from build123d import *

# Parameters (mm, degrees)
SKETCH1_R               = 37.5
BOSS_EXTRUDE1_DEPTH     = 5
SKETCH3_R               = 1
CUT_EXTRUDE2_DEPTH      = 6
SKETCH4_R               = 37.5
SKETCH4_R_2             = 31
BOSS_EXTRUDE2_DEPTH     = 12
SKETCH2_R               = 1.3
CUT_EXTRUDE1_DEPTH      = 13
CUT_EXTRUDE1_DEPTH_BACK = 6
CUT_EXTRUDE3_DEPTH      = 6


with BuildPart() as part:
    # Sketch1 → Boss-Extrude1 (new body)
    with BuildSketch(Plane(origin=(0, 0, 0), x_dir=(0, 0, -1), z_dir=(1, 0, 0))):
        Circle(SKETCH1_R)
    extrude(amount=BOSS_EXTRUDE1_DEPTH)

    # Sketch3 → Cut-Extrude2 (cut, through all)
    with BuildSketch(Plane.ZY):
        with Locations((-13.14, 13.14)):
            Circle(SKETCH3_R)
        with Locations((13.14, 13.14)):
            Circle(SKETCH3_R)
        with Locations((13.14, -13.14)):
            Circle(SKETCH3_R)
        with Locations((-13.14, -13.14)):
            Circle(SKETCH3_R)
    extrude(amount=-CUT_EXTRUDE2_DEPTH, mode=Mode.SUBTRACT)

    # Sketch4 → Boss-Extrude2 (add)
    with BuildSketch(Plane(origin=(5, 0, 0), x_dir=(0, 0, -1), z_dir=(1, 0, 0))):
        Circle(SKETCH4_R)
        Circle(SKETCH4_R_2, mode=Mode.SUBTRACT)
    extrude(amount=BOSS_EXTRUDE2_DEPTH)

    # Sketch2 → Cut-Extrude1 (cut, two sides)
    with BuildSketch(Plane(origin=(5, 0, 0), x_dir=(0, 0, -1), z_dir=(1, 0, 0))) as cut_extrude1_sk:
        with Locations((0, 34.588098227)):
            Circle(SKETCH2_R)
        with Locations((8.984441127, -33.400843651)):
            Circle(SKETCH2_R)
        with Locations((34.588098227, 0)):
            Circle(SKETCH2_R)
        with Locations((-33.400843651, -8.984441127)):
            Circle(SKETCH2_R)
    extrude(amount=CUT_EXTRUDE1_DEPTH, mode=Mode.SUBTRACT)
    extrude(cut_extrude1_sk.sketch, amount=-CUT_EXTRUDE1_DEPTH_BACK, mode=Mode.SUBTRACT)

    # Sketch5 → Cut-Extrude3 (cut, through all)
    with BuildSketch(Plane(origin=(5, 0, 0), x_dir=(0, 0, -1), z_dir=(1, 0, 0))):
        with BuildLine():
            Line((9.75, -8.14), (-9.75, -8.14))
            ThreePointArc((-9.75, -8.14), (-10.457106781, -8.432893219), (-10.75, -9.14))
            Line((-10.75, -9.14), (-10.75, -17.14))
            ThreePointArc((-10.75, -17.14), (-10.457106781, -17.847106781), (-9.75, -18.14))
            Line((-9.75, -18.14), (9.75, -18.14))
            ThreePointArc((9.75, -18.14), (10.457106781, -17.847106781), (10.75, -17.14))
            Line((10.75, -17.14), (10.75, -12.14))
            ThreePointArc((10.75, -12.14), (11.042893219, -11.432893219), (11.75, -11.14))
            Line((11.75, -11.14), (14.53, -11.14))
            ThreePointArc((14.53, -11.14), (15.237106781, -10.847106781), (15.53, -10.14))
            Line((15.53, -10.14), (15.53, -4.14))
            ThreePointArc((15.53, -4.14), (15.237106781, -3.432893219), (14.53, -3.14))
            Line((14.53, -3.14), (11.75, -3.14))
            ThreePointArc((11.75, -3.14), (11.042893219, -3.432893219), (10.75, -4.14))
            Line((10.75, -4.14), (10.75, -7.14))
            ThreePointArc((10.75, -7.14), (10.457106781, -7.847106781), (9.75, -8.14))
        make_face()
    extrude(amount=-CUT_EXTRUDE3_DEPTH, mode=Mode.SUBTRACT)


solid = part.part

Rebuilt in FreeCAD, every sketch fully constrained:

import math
import FreeCAD as App
import Part
import Sketcher
from FreeCAD import Vector

doc = App.newDocument("Part")
body = doc.addObject("PartDesign::Body", "Body")

# Sketch on YZ plane
sketch1 = body.newObject("Sketcher::SketchObject", "Sketch")
sketch1.AttachmentSupport = (doc.getObject("YZ_Plane"), [""])
sketch1.MapMode = "FlatFace"
sketch1.addGeometry(Part.Circle(Vector(0, 0, 0), Vector(0, 0, 1), 37.5), False)
sketch1.addConstraint(Sketcher.Constraint("Coincident", 0, 3, -1, 1))
sketch1.addConstraint(Sketcher.Constraint("Diameter", 0, 75.0))
pad1 = body.newObject("PartDesign::Pad", "Pad")
pad1.Profile = sketch1
pad1.Length = 5

# Sketch on YZ plane
sketch2 = body.newObject("Sketcher::SketchObject", "Sketch001")
sketch2.AttachmentSupport = (doc.getObject("YZ_Plane"), [""])
sketch2.MapMode = "FlatFace"
sketch2.addGeometry(Part.Circle(Vector(13.14, -13.14, 0), Vector(0, 0, 1), 1), False)
sketch2.addGeometry(Part.Circle(Vector(13.14, 13.14, 0), Vector(0, 0, 1), 1), False)
sketch2.addGeometry(Part.Circle(Vector(-13.14, 13.14, 0), Vector(0, 0, 1), 1), False)
sketch2.addGeometry(Part.Circle(Vector(-13.14, -13.14, 0), Vector(0, 0, 1), 1), False)
sketch2.addConstraint(Sketcher.Constraint("Equal", 0, 1))
sketch2.addConstraint(Sketcher.Constraint("Equal", 1, 2))
sketch2.addConstraint(Sketcher.Constraint("Equal", 2, 3))
sketch2.addConstraint(Sketcher.Constraint("Symmetric", 0, 3, 2, 3, -1, 1))
sketch2.addConstraint(Sketcher.Constraint("Symmetric", 1, 3, 3, 3, -1, 1))
sketch2.addConstraint(Sketcher.Constraint("Symmetric", 1, 3, 2, 3, -2))
sketch2.addConstraint(Sketcher.Constraint("Diameter", 0, 2.0))
sketch2.addConstraint(Sketcher.Constraint("DistanceX", -1, 1, 0, 3, 13.14))
sketch2.addConstraint(Sketcher.Constraint("DistanceY", 0, 3, -1, 1, 13.14))
pocket1 = body.newObject("PartDesign::Pocket", "Pocket")
pocket1.Profile = sketch2
pocket1.Type = "ThroughAll"
pocket1.Reversed = True

# Sketch on YZ plane
sketch3 = body.newObject("Sketcher::SketchObject", "Sketch002")
sketch3.AttachmentSupport = (doc.getObject("YZ_Plane"), [""])
sketch3.MapMode = "FlatFace"
sketch3.AttachmentOffset = App.Placement(Vector(0, 0, 5), App.Rotation())
sketch3.addGeometry(Part.Circle(Vector(0, 0, 0), Vector(0, 0, 1), 37.5), False)
sketch3.addGeometry(Part.Circle(Vector(0, 0, 0), Vector(0, 0, 1), 31), False)
sketch3.addConstraint(Sketcher.Constraint("Coincident", 0, 3, -1, 1))
sketch3.addConstraint(Sketcher.Constraint("Coincident", 1, 3, -1, 1))
sketch3.addConstraint(Sketcher.Constraint("Diameter", 0, 75.0))
sketch3.addConstraint(Sketcher.Constraint("Diameter", 1, 62.0))
pad2 = body.newObject("PartDesign::Pad", "Pad001")
pad2.Profile = sketch3
pad2.Length = 12

# Sketch on YZ plane
sketch4 = body.newObject("Sketcher::SketchObject", "Sketch003")
sketch4.AttachmentSupport = (doc.getObject("YZ_Plane"), [""])
sketch4.MapMode = "FlatFace"
sketch4.AttachmentOffset = App.Placement(Vector(0, 0, 5), App.Rotation())
sketch4.addGeometry(Part.Circle(Vector(34.588098, 0, 0), Vector(0, 0, 1), 1.3), False)
sketch4.addGeometry(Part.Circle(Vector(-33.400844, -8.984441, 0), Vector(0, 0, 1), 1.3), False)
sketch4.addGeometry(Part.Circle(Vector(0, -34.588098, 0), Vector(0, 0, 1), 1.3), False)
sketch4.addGeometry(Part.Circle(Vector(-8.984441, 33.400844, 0), Vector(0, 0, 1), 1.3), False)
sketch4.addConstraint(Sketcher.Constraint("Equal", 0, 1))
sketch4.addConstraint(Sketcher.Constraint("Equal", 1, 2))
sketch4.addConstraint(Sketcher.Constraint("Equal", 2, 3))
sketch4.addConstraint(Sketcher.Constraint("PointOnObject", 0, 3, -1))
sketch4.addConstraint(Sketcher.Constraint("PointOnObject", 2, 3, -2))
sketch4.addConstraint(Sketcher.Constraint("Diameter", 0, 2.6))
sketch4.addConstraint(Sketcher.Constraint("DistanceX", -1, 1, 0, 3, 34.588098))
sketch4.addConstraint(Sketcher.Constraint("DistanceY", 2, 3, -1, 1, 34.588098))
sketch4.addConstraint(Sketcher.Constraint("DistanceY", 1, 3, -1, 1, 8.984441))
sketch4.addConstraint(Sketcher.Constraint("DistanceX", 3, 3, -1, 1, 8.984441))
sketch4.addConstraint(Sketcher.Constraint("DistanceX", 1, 3, 0, 3, 67.988942))
sketch4.addConstraint(Sketcher.Constraint("DistanceY", 2, 3, 3, 3, 67.988942))
pocket2 = body.newObject("PartDesign::Pocket", "Pocket001")
pocket2.Profile = sketch4
pocket2.Type = "ThroughAll"
pocket2.Midplane = True

# Sketch on YZ plane
sketch5 = body.newObject("Sketcher::SketchObject", "Sketch004")
sketch5.AttachmentSupport = (doc.getObject("YZ_Plane"), [""])
sketch5.MapMode = "FlatFace"
sketch5.AttachmentOffset = App.Placement(Vector(0, 0, 5), App.Rotation())
sketch5.addGeometry(Part.LineSegment(Vector(-8.14, -9.75, 0), Vector(-8.14, 9.75, 0)), False)
sketch5.addGeometry(Part.ArcOfCircle(Part.Circle(Vector(-9.14, 9.75, 0), Vector(0, 0, 1), 1), math.radians(0), math.radians(90)), False)
sketch5.addGeometry(Part.LineSegment(Vector(-9.14, 10.75, 0), Vector(-17.14, 10.75, 0)), False)
sketch5.addGeometry(Part.ArcOfCircle(Part.Circle(Vector(-17.14, 9.75, 0), Vector(0, 0, 1), 1), math.radians(90), math.radians(180)), False)
sketch5.addGeometry(Part.LineSegment(Vector(-18.14, 9.75, 0), Vector(-18.14, -9.75, 0)), False)
sketch5.addGeometry(Part.ArcOfCircle(Part.Circle(Vector(-17.14, -9.75, 0), Vector(0, 0, 1), 1), math.radians(-180), math.radians(-90)), False)
sketch5.addGeometry(Part.LineSegment(Vector(-17.14, -10.75, 0), Vector(-12.14, -10.75, 0)), False)
sketch5.addGeometry(Part.ArcOfCircle(Part.Circle(Vector(-12.14, -11.75, 0), Vector(0, 0, 1), 1), math.radians(0), math.radians(90)), False)
sketch5.addGeometry(Part.LineSegment(Vector(-11.14, -11.75, 0), Vector(-11.14, -14.53, 0)), False)
sketch5.addGeometry(Part.ArcOfCircle(Part.Circle(Vector(-10.14, -14.53, 0), Vector(0, 0, 1), 1), math.radians(-180), math.radians(-90)), False)
sketch5.addGeometry(Part.LineSegment(Vector(-10.14, -15.53, 0), Vector(-4.14, -15.53, 0)), False)
sketch5.addGeometry(Part.ArcOfCircle(Part.Circle(Vector(-4.14, -14.53, 0), Vector(0, 0, 1), 1), math.radians(-90), math.radians(0)), False)
sketch5.addGeometry(Part.LineSegment(Vector(-3.14, -14.53, 0), Vector(-3.14, -11.75, 0)), False)
sketch5.addGeometry(Part.ArcOfCircle(Part.Circle(Vector(-4.14, -11.75, 0), Vector(0, 0, 1), 1), math.radians(0), math.radians(90)), False)
sketch5.addGeometry(Part.LineSegment(Vector(-4.14, -10.75, 0), Vector(-7.14, -10.75, 0)), False)
sketch5.addGeometry(Part.ArcOfCircle(Part.Circle(Vector(-7.14, -9.75, 0), Vector(0, 0, 1), 1), math.radians(-180), math.radians(-90)), False)
sketch5.addConstraint(Sketcher.Constraint("Tangent", 0, 2, 1, 1))
sketch5.addConstraint(Sketcher.Constraint("Tangent", 1, 2, 2, 1))
sketch5.addConstraint(Sketcher.Constraint("Tangent", 2, 2, 3, 1))
sketch5.addConstraint(Sketcher.Constraint("Tangent", 3, 2, 4, 1))
sketch5.addConstraint(Sketcher.Constraint("Tangent", 4, 2, 5, 1))
sketch5.addConstraint(Sketcher.Constraint("Tangent", 5, 2, 6, 1))
sketch5.addConstraint(Sketcher.Constraint("Tangent", 6, 2, 7, 2))
sketch5.addConstraint(Sketcher.Constraint("Tangent", 7, 1, 8, 1))
sketch5.addConstraint(Sketcher.Constraint("Tangent", 8, 2, 9, 1))
sketch5.addConstraint(Sketcher.Constraint("Tangent", 9, 2, 10, 1))
sketch5.addConstraint(Sketcher.Constraint("Tangent", 10, 2, 11, 1))
sketch5.addConstraint(Sketcher.Constraint("Tangent", 11, 2, 12, 1))
sketch5.addConstraint(Sketcher.Constraint("Tangent", 12, 2, 13, 1))
sketch5.addConstraint(Sketcher.Constraint("Tangent", 13, 2, 14, 1))
sketch5.addConstraint(Sketcher.Constraint("Tangent", 14, 2, 15, 2))
sketch5.addConstraint(Sketcher.Constraint("Tangent", 15, 1, 0, 1))
sketch5.addConstraint(Sketcher.Constraint("Vertical", 0))
sketch5.addConstraint(Sketcher.Constraint("Horizontal", 2))
sketch5.addConstraint(Sketcher.Constraint("Vertical", 4))
sketch5.addConstraint(Sketcher.Constraint("Horizontal", 6))
sketch5.addConstraint(Sketcher.Constraint("Vertical", 8))
sketch5.addConstraint(Sketcher.Constraint("Horizontal", 10))
sketch5.addConstraint(Sketcher.Constraint("Vertical", 12))
sketch5.addConstraint(Sketcher.Constraint("Horizontal", 14))
sketch5.addConstraint(Sketcher.Constraint("Equal", 1, 3))
sketch5.addConstraint(Sketcher.Constraint("Equal", 3, 5))
sketch5.addConstraint(Sketcher.Constraint("Equal", 5, 7))
sketch5.addConstraint(Sketcher.Constraint("Equal", 7, 9))
sketch5.addConstraint(Sketcher.Constraint("Equal", 9, 11))
sketch5.addConstraint(Sketcher.Constraint("Equal", 11, 13))
sketch5.addConstraint(Sketcher.Constraint("Equal", 13, 15))
sketch5.addConstraint(Sketcher.Constraint("Horizontal", 7, 3, 13, 3))
sketch5.addConstraint(Sketcher.Constraint("Radius", 1, 1.0))
sketch5.addConstraint(Sketcher.Constraint("DistanceX", 2, 2, 2, 1, 8.0))
sketch5.addConstraint(Sketcher.Constraint("DistanceX", 6, 1, 6, 2, 5.0))
sketch5.addConstraint(Sketcher.Constraint("DistanceX", 10, 1, 10, 2, 6.0))
sketch5.addConstraint(Sketcher.Constraint("DistanceY", 0, 1, 0, 2, 19.5))
sketch5.addConstraint(Sketcher.Constraint("DistanceY", 8, 2, 8, 1, 2.78))
sketch5.addConstraint(Sketcher.Constraint("DistanceX", 1, 3, -1, 1, 9.14))
sketch5.addConstraint(Sketcher.Constraint("DistanceY", -1, 1, 1, 3, 9.75))
pocket3 = body.newObject("PartDesign::Pocket", "Pocket002")
pocket3.Profile = sketch5
pocket3.Type = "ThroughAll"

doc.recompute()
